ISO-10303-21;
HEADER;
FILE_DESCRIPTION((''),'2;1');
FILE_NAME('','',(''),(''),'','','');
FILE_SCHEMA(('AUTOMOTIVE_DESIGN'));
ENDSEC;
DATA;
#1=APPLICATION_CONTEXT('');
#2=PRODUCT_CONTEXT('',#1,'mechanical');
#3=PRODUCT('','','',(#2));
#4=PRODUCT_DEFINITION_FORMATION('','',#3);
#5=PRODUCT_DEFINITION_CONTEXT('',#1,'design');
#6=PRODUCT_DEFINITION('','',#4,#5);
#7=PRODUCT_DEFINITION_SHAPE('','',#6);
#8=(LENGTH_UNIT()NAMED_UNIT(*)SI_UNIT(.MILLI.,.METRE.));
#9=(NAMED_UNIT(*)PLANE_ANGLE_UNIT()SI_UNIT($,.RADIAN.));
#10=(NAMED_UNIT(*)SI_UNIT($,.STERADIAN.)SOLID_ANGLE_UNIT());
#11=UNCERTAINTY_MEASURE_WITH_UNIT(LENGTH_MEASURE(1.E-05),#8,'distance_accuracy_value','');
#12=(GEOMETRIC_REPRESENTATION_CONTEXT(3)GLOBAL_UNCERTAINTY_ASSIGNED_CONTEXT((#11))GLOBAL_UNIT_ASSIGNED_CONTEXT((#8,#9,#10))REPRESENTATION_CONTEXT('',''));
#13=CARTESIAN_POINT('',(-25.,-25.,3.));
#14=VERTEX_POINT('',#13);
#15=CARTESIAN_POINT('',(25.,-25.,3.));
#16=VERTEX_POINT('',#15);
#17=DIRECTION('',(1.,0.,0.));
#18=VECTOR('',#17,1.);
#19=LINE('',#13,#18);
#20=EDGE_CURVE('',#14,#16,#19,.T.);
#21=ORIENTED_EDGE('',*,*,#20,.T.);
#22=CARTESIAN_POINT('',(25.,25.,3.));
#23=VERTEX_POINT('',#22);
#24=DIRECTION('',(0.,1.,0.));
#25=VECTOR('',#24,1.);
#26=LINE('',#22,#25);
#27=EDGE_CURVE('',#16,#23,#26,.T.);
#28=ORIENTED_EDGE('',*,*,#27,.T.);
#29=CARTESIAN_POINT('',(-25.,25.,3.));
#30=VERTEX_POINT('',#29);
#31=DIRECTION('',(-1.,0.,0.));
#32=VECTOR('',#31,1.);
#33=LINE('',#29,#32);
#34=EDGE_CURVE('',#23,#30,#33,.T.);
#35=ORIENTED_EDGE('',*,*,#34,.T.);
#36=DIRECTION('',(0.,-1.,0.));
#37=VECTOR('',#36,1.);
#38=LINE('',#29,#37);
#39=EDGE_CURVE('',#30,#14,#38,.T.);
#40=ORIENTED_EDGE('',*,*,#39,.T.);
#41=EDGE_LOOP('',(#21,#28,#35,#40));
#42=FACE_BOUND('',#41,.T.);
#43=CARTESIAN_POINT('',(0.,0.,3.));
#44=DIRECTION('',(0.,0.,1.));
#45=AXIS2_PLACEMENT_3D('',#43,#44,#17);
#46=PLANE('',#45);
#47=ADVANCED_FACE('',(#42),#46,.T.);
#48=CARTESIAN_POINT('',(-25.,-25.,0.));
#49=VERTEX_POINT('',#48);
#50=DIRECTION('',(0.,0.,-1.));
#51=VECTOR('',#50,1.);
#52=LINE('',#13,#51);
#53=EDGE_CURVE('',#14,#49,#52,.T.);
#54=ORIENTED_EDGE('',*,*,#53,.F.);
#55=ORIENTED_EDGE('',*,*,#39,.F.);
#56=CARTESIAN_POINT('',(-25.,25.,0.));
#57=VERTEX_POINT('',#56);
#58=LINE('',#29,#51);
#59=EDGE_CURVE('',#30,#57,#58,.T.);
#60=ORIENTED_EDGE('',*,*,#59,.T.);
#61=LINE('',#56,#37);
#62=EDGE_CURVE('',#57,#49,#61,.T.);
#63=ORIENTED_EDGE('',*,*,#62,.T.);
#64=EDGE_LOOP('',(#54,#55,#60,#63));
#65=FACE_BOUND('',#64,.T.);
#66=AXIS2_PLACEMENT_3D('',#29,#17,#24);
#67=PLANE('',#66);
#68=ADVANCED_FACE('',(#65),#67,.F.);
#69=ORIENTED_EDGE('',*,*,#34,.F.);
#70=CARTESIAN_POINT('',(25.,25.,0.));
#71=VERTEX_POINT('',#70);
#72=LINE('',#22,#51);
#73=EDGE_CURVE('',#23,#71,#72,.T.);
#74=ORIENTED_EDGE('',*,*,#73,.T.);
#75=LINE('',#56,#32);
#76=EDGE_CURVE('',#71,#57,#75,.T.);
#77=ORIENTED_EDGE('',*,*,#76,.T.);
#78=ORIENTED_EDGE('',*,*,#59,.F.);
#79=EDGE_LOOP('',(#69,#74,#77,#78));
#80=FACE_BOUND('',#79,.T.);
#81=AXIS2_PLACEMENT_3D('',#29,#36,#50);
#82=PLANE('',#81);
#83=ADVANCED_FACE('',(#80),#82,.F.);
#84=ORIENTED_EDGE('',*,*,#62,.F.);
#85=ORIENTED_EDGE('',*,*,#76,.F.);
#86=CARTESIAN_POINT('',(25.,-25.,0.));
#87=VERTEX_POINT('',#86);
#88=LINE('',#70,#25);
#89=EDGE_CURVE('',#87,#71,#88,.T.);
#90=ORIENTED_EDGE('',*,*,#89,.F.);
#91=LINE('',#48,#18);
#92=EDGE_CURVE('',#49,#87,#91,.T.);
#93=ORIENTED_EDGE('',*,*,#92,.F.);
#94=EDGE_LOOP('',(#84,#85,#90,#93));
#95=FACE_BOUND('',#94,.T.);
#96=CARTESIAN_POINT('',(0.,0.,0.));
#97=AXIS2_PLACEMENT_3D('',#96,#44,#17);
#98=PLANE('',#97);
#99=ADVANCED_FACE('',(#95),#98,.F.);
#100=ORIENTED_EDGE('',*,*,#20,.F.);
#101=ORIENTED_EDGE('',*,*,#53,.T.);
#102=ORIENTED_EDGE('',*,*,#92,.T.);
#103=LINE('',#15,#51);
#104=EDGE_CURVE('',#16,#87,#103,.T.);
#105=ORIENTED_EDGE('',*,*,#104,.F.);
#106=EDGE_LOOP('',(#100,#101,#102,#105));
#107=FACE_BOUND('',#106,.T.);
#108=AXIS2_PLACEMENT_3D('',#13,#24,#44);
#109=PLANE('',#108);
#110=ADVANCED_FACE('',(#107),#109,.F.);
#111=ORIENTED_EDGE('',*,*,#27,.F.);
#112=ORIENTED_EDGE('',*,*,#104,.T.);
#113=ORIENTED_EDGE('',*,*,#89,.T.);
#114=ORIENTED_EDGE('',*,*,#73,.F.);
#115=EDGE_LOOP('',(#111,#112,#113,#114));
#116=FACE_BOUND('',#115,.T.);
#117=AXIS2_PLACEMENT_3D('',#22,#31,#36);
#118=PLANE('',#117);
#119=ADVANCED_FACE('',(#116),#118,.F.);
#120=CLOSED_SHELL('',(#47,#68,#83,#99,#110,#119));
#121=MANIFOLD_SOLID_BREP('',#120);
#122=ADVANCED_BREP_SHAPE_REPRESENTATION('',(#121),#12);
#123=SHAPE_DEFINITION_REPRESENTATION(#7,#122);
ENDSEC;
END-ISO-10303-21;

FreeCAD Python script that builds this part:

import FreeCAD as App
import Part
import Sketcher
from FreeCAD import Vector
Q = App.Units.Quantity

doc = App.newDocument("Part")
body = doc.addObject("PartDesign::Body", "Body")

# Sketch on XY plane
sketch1 = body.newObject("Sketcher::SketchObject", "Sketch")
sketch1.AttachmentSupport = (doc.getObject("XY_Plane"), [""])
sketch1.MapMode = "FlatFace"
sketch1.addGeometry([
    Part.LineSegment(Vector(-25, 25, 0), Vector(-25, -25, 0)),
    Part.LineSegment(Vector(-25, -25, 0), Vector(25, -25, 0)),
    Part.LineSegment(Vector(25, -25, 0), Vector(25, 25, 0)),
    Part.LineSegment(Vector(25, 25, 0), Vector(-25, 25, 0)),
], False)
sketch1.addConstraint([
    Sketcher.Constraint("Coincident", 0, 2, 1, 1),
    Sketcher.Constraint("Coincident", 1, 2, 2, 1),
    Sketcher.Constraint("Coincident", 2, 2, 3, 1),
    Sketcher.Constraint("Coincident", 3, 2, 0, 1),
    Sketcher.Constraint("Vertical", 0),
    Sketcher.Constraint("Horizontal", 1),
    Sketcher.Constraint("Vertical", 2),
    Sketcher.Constraint("Horizontal", 3),
    Sketcher.Constraint("Symmetric", 0, 2, 2, 2, -1, 1),
    Sketcher.Constraint("Equal", 3, 0),
    Sketcher.Constraint("DistanceX", 1, 1, 1, 2, Q("50 mm")),
])
pad1 = body.newObject("PartDesign::Pad", "Pad")
pad1.Profile = sketch1
pad1.Length = 3

doc.recompute()
